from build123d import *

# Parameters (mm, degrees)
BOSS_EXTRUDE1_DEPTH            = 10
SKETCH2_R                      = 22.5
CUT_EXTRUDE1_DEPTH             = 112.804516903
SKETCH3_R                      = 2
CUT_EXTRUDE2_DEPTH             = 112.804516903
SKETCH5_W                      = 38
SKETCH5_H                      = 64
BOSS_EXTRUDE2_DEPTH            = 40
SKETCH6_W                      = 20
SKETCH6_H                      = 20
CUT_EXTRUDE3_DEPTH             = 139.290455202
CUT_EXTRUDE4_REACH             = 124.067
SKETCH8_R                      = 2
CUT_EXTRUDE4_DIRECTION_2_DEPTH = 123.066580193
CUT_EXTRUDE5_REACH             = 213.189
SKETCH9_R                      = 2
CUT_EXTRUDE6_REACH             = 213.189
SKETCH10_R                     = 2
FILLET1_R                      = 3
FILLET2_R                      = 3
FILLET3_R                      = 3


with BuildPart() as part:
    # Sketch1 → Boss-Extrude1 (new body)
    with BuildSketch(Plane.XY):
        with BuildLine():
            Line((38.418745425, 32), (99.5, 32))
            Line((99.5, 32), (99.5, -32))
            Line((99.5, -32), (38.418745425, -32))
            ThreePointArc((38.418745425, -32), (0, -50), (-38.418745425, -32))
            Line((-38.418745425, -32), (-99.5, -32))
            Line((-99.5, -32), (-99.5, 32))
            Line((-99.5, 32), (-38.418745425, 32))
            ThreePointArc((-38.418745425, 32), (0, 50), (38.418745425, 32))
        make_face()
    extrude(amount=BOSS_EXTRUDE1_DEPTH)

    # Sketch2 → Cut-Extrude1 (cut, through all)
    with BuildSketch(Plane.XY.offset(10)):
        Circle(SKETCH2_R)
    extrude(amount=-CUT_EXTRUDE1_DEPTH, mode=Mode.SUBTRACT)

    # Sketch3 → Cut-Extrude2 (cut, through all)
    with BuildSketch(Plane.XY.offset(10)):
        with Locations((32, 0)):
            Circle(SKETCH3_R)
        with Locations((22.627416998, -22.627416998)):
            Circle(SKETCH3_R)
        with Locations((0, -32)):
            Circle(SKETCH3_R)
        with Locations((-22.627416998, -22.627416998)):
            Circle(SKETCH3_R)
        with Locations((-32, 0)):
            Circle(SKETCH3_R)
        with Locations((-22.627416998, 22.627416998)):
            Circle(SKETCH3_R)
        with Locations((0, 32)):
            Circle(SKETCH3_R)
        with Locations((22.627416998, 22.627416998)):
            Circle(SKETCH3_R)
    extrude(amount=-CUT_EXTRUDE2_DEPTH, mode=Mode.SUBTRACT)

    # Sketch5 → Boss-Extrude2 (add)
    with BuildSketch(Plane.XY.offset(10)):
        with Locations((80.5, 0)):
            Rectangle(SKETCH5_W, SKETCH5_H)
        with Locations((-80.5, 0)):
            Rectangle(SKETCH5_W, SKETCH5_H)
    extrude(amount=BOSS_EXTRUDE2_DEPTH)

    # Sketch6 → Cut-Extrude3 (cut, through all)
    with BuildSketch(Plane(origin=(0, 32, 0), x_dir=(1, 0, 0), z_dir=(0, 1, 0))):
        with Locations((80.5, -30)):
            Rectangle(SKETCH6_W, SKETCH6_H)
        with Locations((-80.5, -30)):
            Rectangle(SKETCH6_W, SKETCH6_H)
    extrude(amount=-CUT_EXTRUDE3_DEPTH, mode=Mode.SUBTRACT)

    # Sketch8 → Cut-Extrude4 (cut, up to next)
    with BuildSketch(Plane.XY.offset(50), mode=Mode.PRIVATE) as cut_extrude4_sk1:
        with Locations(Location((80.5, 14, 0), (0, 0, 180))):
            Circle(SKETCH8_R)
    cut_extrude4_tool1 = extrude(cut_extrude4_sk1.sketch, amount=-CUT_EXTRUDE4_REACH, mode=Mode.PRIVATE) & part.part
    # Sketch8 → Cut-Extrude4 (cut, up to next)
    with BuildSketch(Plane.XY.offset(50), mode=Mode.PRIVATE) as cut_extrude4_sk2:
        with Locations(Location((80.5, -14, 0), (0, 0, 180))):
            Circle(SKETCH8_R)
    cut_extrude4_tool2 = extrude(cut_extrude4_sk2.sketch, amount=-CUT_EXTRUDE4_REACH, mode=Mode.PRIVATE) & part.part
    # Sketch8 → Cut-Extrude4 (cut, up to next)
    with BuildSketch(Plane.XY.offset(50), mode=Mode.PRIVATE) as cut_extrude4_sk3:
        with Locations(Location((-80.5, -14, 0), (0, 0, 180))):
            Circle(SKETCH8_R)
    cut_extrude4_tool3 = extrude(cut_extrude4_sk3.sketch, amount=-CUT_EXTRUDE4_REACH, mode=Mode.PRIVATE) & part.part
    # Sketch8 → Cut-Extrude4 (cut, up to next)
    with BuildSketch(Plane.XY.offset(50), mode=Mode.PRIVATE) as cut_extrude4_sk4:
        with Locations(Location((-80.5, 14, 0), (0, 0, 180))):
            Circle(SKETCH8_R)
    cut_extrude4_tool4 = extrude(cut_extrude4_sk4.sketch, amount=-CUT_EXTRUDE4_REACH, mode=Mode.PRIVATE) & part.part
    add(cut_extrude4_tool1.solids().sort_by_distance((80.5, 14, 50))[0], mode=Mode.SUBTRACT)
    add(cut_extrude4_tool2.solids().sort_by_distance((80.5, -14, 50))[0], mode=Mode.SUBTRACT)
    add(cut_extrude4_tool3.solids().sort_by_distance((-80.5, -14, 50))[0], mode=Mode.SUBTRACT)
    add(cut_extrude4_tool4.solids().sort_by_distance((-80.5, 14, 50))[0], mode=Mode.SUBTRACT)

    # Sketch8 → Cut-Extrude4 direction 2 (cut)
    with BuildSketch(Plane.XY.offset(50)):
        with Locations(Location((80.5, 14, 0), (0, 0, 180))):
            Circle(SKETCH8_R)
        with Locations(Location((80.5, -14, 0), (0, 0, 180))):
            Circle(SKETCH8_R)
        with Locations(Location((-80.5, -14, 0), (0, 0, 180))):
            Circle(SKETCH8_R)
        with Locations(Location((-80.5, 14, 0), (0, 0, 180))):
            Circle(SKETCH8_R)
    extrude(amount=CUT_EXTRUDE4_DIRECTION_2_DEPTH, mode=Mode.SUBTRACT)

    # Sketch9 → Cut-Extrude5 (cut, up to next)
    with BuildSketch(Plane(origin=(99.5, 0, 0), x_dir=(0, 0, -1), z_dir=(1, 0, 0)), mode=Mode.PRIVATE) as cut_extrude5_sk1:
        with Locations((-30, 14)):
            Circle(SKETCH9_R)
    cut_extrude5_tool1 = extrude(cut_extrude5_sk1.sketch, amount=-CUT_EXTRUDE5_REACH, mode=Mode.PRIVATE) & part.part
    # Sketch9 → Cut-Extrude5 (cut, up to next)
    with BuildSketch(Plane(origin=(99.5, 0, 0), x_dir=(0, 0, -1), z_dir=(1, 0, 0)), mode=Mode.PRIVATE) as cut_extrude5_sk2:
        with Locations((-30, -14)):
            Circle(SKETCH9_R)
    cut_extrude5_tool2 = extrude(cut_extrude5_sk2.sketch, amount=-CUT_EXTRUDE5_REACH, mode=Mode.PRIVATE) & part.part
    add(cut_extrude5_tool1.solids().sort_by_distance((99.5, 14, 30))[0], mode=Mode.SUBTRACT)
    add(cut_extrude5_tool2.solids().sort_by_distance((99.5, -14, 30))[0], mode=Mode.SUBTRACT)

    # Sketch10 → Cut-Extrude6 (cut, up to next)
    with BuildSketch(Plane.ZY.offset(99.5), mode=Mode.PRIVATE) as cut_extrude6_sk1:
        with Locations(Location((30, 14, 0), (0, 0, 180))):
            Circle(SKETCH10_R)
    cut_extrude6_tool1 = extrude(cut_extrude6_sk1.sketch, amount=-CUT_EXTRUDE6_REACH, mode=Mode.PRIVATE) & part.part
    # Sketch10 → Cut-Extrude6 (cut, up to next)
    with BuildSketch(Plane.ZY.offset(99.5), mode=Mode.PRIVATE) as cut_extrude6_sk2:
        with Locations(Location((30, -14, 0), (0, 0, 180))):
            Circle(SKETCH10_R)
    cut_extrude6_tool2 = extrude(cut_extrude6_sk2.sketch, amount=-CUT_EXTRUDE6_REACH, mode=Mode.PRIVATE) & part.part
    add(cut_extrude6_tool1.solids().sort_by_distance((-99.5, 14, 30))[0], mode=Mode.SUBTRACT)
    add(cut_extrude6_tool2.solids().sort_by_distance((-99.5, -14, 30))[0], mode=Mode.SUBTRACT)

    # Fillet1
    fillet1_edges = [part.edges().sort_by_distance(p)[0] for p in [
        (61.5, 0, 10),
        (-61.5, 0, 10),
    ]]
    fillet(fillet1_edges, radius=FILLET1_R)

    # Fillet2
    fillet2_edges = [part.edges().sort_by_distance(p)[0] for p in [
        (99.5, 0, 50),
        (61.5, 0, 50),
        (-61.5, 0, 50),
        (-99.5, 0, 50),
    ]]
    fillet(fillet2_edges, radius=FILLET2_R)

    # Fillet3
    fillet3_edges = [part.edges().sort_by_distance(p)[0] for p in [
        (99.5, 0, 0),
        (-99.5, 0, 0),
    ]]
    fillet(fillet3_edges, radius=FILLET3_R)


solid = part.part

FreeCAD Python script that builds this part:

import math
import FreeCAD as App
import Part
import Sketcher
Q = App.Units.Quantity


def edges_at(feature, points):
    """Names of the edges that pass closest to the given points."""
    edges = feature.Shape.Edges
    near = lambda p: min(range(len(edges)), key=lambda i: edges[i].distToShape(Part.Vertex(*p))[0])
    return sorted({f"Edge{near(p) + 1}" for p in points})


def add_polygon(sketch, points):
    """Adds a closed chain of lines whose ends are joined by coincident constraints."""
    first, n = sketch.GeometryCount, len(points)
    for a, b in zip(points, points[1:] + points[:1]):
        sketch.addGeometry(Part.LineSegment(App.Vector(*a, 0), App.Vector(*b, 0)), False)
    for i in range(n):
        sketch.addConstraint(Sketcher.Constraint("Coincident", first + i, 2, first + (i + 1) % n, 1))

doc = App.newDocument("Part")
body = doc.addObject("PartDesign::Body", "Body")

# Sketch on XY plane
sketch1 = body.newObject("Sketcher::SketchObject", "Sketch")
sketch1.AttachmentSupport = (doc.getObject("XY_Plane"), [""])
sketch1.MapMode = "FlatFace"
sketch1.addGeometry(Part.LineSegment(App.Vector(100, 32, 0), App.Vector(38, 32, 0)), False)
sketch1.addGeometry(Part.ArcOfCircle(Part.Circle(App.Vector(0, 0, 0), App.Vector(0, 0, 1), 50), math.radians(40), math.radians(140)), False)
sketch1.addGeometry(Part.LineSegment(App.Vector(-38, 32, 0), App.Vector(-100, 32, 0)), False)
sketch1.addGeometry(Part.LineSegment(App.Vector(-100, 32, 0), App.Vector(-100, -32, 0)), False)
sketch1.addGeometry(Part.LineSegment(App.Vector(-100, -32, 0), App.Vector(-38, -32, 0)), False)
sketch1.addGeometry(Part.ArcOfCircle(Part.Circle(App.Vector(0, 0, 0), App.Vector(0, 0, 1), 50), math.radians(-140), math.radians(-40)), False)
sketch1.addGeometry(Part.LineSegment(App.Vector(38, -32, 0), App.Vector(100, -32, 0)), False)
sketch1.addGeometry(Part.LineSegment(App.Vector(100, -32, 0), App.Vector(100, 32, 0)), False)
sketch1.addConstraint(Sketcher.Constraint("Coincident", 0, 2, 1, 1))
sketch1.addConstraint(Sketcher.Constraint("Coincident", 1, 2, 2, 1))
sketch1.addConstraint(Sketcher.Constraint("Coincident", 2, 2, 3, 1))
sketch1.addConstraint(Sketcher.Constraint("Coincident", 3, 2, 4, 1))
sketch1.addConstraint(Sketcher.Constraint("Coincident", 4, 2, 5, 1))
sketch1.addConstraint(Sketcher.Constraint("Coincident", 5, 2, 6, 1))
sketch1.addConstraint(Sketcher.Constraint("Coincident", 6, 2, 7, 1))
sketch1.addConstraint(Sketcher.Constraint("Coincident", 7, 2, 0, 1))
sketch1.addConstraint(Sketcher.Constraint("Horizontal", 0))
sketch1.addConstraint(Sketcher.Constraint("Horizontal", 2))
sketch1.addConstraint(Sketcher.Constraint("Vertical", 3))
sketch1.addConstraint(Sketcher.Constraint("Horizontal", 4))
sketch1.addConstraint(Sketcher.Constraint("Horizontal", 6))
sketch1.addConstraint(Sketcher.Constraint("Vertical", 7))
sketch1.addConstraint(Sketcher.Constraint("Coincident", 1, 3, -1, 1))
sketch1.addConstraint(Sketcher.Constraint("Coincident", 5, 3, -1, 1))
sketch1.addConstraint(Sketcher.Constraint("Equal", 1, 5))
sketch1.addConstraint(Sketcher.Constraint("Symmetric", 2, 2, 6, 2, -1, 1))
sketch1.addConstraint(Sketcher.Constraint("Horizontal", 0, 2, 1, 2))
sketch1.addConstraint(Sketcher.Constraint("Horizontal", 4, 2, 5, 2))
sketch1.addConstraint(Sketcher.Constraint("Radius", 1, Q("50 mm")))
sketch1.addConstraint(Sketcher.Constraint("DistanceY", 3, 2, 3, 1, Q("64 mm")))
sketch1.addConstraint(Sketcher.Constraint("DistanceX", 2, 2, -1, 1, Q("99.5 mm")))
pad1 = body.newObject("PartDesign::Pad", "Pad")
pad1.Profile = sketch1
pad1.Length = 10

# Sketch on XY plane
sketch2 = body.newObject("Sketcher::SketchObject", "Sketch001")
sketch2.AttachmentSupport = (doc.getObject("XY_Plane"), [""])
sketch2.MapMode = "FlatFace"
sketch2.AttachmentOffset = App.Placement(App.Vector(0, 0, 10), App.Rotation())
sketch2.addGeometry(Part.Circle(App.Vector(0, 0, 0), App.Vector(0, 0, 1), 22), False)
sketch2.addConstraint(Sketcher.Constraint("Coincident", 0, 3, -1, 1))
sketch2.addConstraint(Sketcher.Constraint("Diameter", 0, Q("45 mm")))
pocket1 = body.newObject("PartDesign::Pocket", "Pocket")
pocket1.Profile = sketch2
pocket1.Type = "ThroughAll"

# Sketch on XY plane
sketch3 = body.newObject("Sketcher::SketchObject", "Sketch002")
sketch3.AttachmentSupport = (doc.getObject("XY_Plane"), [""])
sketch3.MapMode = "FlatFace"
sketch3.AttachmentOffset = App.Placement(App.Vector(0, 0, 10), App.Rotation())
sketch3.addGeometry(Part.Circle(App.Vector(32, 0, 0), App.Vector(0, 0, 1), 2), False)
sketch3.addGeometry(Part.Circle(App.Vector(22.6, -22.6, 0), App.Vector(0, 0, 1), 2), False)
sketch3.addGeometry(Part.Circle(App.Vector(0, -32, 0), App.Vector(0, 0, 1), 2), False)
sketch3.addGeometry(Part.Circle(App.Vector(-22.6, -22.6, 0), App.Vector(0, 0, 1), 2), False)
sketch3.addGeometry(Part.Circle(App.Vector(-32, 0, 0), App.Vector(0, 0, 1), 2), False)
sketch3.addGeometry(Part.Circle(App.Vector(-22.6, 22.6, 0), App.Vector(0, 0, 1), 2), False)
sketch3.addGeometry(Part.Circle(App.Vector(0, 32, 0), App.Vector(0, 0, 1), 2), False)
sketch3.addGeometry(Part.Circle(App.Vector(22.6, 22.6, 0), App.Vector(0, 0, 1), 2), False)
sketch3.addConstraint(Sketcher.Constraint("Equal", 0, 1))
sketch3.addConstraint(Sketcher.Constraint("Equal", 1, 2))
sketch3.addConstraint(Sketcher.Constraint("Equal", 2, 3))
sketch3.addConstraint(Sketcher.Constraint("Equal", 3, 4))
sketch3.addConstraint(Sketcher.Constraint("Equal", 4, 5))
sketch3.addConstraint(Sketcher.Constraint("Equal", 5, 6))
sketch3.addConstraint(Sketcher.Constraint("Equal", 6, 7))
sketch3.addConstraint(Sketcher.Constraint("Symmetric", 0, 3, 4, 3, -1, 1))
sketch3.addConstraint(Sketcher.Constraint("Symmetric", 1, 3, 5, 3, -1, 1))
sketch3.addConstraint(Sketcher.Constraint("Symmetric", 2, 3, 6, 3, -1, 1))
sketch3.addConstraint(Sketcher.Constraint("Symmetric", 3, 3, 7, 3, -1, 1))
sketch3.addConstraint(Sketcher.Constraint("Symmetric", 1, 3, 3, 3, -2))
sketch3.addConstraint(Sketcher.Constraint("PointOnObject", 0, 3, -1))
sketch3.addConstraint(Sketcher.Constraint("PointOnObject", 2, 3, -2))
sketch3.addConstraint(Sketcher.Constraint("Diameter", 0, Q("4 mm")))
sketch3.addConstraint(Sketcher.Constraint("DistanceX", -1, 1, 0, 3, Q("32 mm")))
sketch3.addConstraint(Sketcher.Constraint("DistanceY", 2, 3, -1, 1, Q("32 mm")))
sketch3.addConstraint(Sketcher.Constraint("DistanceX", -1, 1, 1, 3, Q("22.627417 mm")))
sketch3.addConstraint(Sketcher.Constraint("DistanceY", 1, 3, -1, 1, Q("22.627417 mm")))
pocket2 = body.newObject("PartDesign::Pocket", "Pocket001")
pocket2.Profile = sketch3
pocket2.Type = "ThroughAll"

# Sketch on XY plane
sketch4 = body.newObject("Sketcher::SketchObject", "Sketch003")
sketch4.AttachmentSupport = (doc.getObject("XY_Plane"), [""])
sketch4.MapMode = "FlatFace"
sketch4.AttachmentOffset = App.Placement(App.Vector(0, 0, 10), App.Rotation())
add_polygon(sketch4, [(62, 32), (62, -32), (100, -32), (100, 32)])  # lines 0-3
add_polygon(sketch4, [(-100, 32), (-100, -32), (-62, -32), (-62, 32)])  # lines 4-7
sketch4.addConstraint(Sketcher.Constraint("Vertical", 0))
sketch4.addConstraint(Sketcher.Constraint("Horizontal", 1))
sketch4.addConstraint(Sketcher.Constraint("Vertical", 2))
sketch4.addConstraint(Sketcher.Constraint("Horizontal", 3))
sketch4.addConstraint(Sketcher.Constraint("Vertical", 4))
sketch4.addConstraint(Sketcher.Constraint("Horizontal", 5))
sketch4.addConstraint(Sketcher.Constraint("Vertical", 6))
sketch4.addConstraint(Sketcher.Constraint("Horizontal", 7))
sketch4.addConstraint(Sketcher.Constraint("Symmetric", 2, 2, 4, 2, -1, 1))
sketch4.addConstraint(Sketcher.Constraint("Symmetric", 0, 2, 6, 2, -1, 1))
sketch4.addConstraint(Sketcher.Constraint("Horizontal", 1, 2, 4, 2))
sketch4.addConstraint(Sketcher.Constraint("DistanceX", 1, 1, 1, 2, Q("38 mm")))
sketch4.addConstraint(Sketcher.Constraint("DistanceY", 0, 2, 0, 1, Q("64 mm")))
sketch4.addConstraint(Sketcher.Constraint("DistanceX", 4, 2, 0, 2, Q("161 mm")))
pad2 = body.newObject("PartDesign::Pad", "Pad001")
pad2.Profile = sketch4
pad2.Length = 40

# Sketch on XZ plane
sketch5 = body.newObject("Sketcher::SketchObject", "Sketch004")
sketch5.AttachmentSupport = (doc.getObject("XZ_Plane"), [""])
sketch5.MapMode = "FlatFace"
sketch5.AttachmentOffset = App.Placement(App.Vector(0, 0, -32), App.Rotation())
add_polygon(sketch5, [(70, 20), (70, 40), (90, 40), (90, 20)])  # lines 0-3
add_polygon(sketch5, [(-90, 20), (-90, 40), (-70, 40), (-70, 20)])  # lines 4-7
sketch5.addConstraint(Sketcher.Constraint("Vertical", 0))
sketch5.addConstraint(Sketcher.Constraint("Horizontal", 1))
sketch5.addConstraint(Sketcher.Constraint("Vertical", 2))
sketch5.addConstraint(Sketcher.Constraint("Horizontal", 3))
sketch5.addConstraint(Sketcher.Constraint("Vertical", 4))
sketch5.addConstraint(Sketcher.Constraint("Horizontal", 5))
sketch5.addConstraint(Sketcher.Constraint("Vertical", 6))
sketch5.addConstraint(Sketcher.Constraint("Horizontal", 7))
sketch5.addConstraint(Sketcher.Constraint("Symmetric", 1, 2, 4, 2, -2))
sketch5.addConstraint(Sketcher.Constraint("Symmetric", 3, 2, 6, 2, -2))
sketch5.addConstraint(Sketcher.Constraint("Equal", 7, 0))
sketch5.addConstraint(Sketcher.Constraint("DistanceX", 1, 1, 1, 2, Q("20 mm")))
sketch5.addConstraint(Sketcher.Constraint("DistanceY", -1, 1, 0, 2, Q("40 mm")))
sketch5.addConstraint(Sketcher.Constraint("DistanceX", 4, 2, 0, 2, Q("161 mm")))
pocket3 = body.newObject("PartDesign::Pocket", "Pocket002")
pocket3.Profile = sketch5
pocket3.Type = "ThroughAll"
pocket3.Reversed = True

# Sketch on XY plane
sketch6 = body.newObject("Sketcher::SketchObject", "Sketch005")
sketch6.AttachmentSupport = (doc.getObject("XY_Plane"), [""])
sketch6.MapMode = "FlatFace"
sketch6.AttachmentOffset = App.Placement(App.Vector(0, 0, 50), App.Rotation())
sketch6.addGeometry(Part.Circle(App.Vector(80.5, 14, 0), App.Vector(0, 0, 1), 2), False)
sketch6.addConstraint(Sketcher.Constraint("Diameter", 0, Q("4 mm")))
sketch6.addConstraint(Sketcher.Constraint("DistanceY", -1, 1, 0, 3, Q("14 mm")))
sketch6.addConstraint(Sketcher.Constraint("DistanceX", -1, 1, 0, 3, Q("80.5 mm")))
pocket4 = body.newObject("PartDesign::Pocket", "Pocket003")
pocket4.Profile = sketch6
pocket4.Type = "UpToFirst"

# Sketch on XY plane
sketch7 = body.newObject("Sketcher::SketchObject", "Sketch006")
sketch7.AttachmentSupport = (doc.getObject("XY_Plane"), [""])
sketch7.MapMode = "FlatFace"
sketch7.AttachmentOffset = App.Placement(App.Vector(0, 0, 50), App.Rotation())
sketch7.addGeometry(Part.Circle(App.Vector(80.5, -14, 0), App.Vector(0, 0, 1), 2), False)
sketch7.addConstraint(Sketcher.Constraint("Diameter", 0, Q("4 mm")))
sketch7.addConstraint(Sketcher.Constraint("DistanceY", 0, 3, -1, 1, Q("14 mm")))
sketch7.addConstraint(Sketcher.Constraint("DistanceX", -1, 1, 0, 3, Q("80.5 mm")))
pocket5 = body.newObject("PartDesign::Pocket", "Pocket004")
pocket5.Profile = sketch7
pocket5.Type = "UpToFirst"

# Sketch on XY plane
sketch8 = body.newObject("Sketcher::SketchObject", "Sketch007")
sketch8.AttachmentSupport = (doc.getObject("XY_Plane"), [""])
sketch8.MapMode = "FlatFace"
sketch8.AttachmentOffset = App.Placement(App.Vector(0, 0, 50), App.Rotation())
sketch8.addGeometry(Part.Circle(App.Vector(-80.5, -14, 0), App.Vector(0, 0, 1), 2), False)
sketch8.addConstraint(Sketcher.Constraint("Diameter", 0, Q("4 mm")))
sketch8.addConstraint(Sketcher.Constraint("DistanceY", 0, 3, -1, 1, Q("14 mm")))
sketch8.addConstraint(Sketcher.Constraint("DistanceX", 0, 3, -1, 1, Q("80.5 mm")))
pocket6 = body.newObject("PartDesign::Pocket", "Pocket005")
pocket6.Profile = sketch8
pocket6.Type = "UpToFirst"

# Sketch on XY plane
sketch9 = body.newObject("Sketcher::SketchObject", "Sketch008")
sketch9.AttachmentSupport = (doc.getObject("XY_Plane"), [""])
sketch9.MapMode = "FlatFace"
sketch9.AttachmentOffset = App.Placement(App.Vector(0, 0, 50), App.Rotation())
sketch9.addGeometry(Part.Circle(App.Vector(-80.5, 14, 0), App.Vector(0, 0, 1), 2), False)
sketch9.addConstraint(Sketcher.Constraint("Diameter", 0, Q("4 mm")))
sketch9.addConstraint(Sketcher.Constraint("DistanceY", -1, 1, 0, 3, Q("14 mm")))
sketch9.addConstraint(Sketcher.Constraint("DistanceX", 0, 3, -1, 1, Q("80.5 mm")))
pocket7 = body.newObject("PartDesign::Pocket", "Pocket006")
pocket7.Profile = sketch9
pocket7.Type = "UpToFirst"

# Sketch on XY plane
sketch10 = body.newObject("Sketcher::SketchObject", "Sketch009")
sketch10.AttachmentSupport = (doc.getObject("XY_Plane"), [""])
sketch10.MapMode = "FlatFace"
sketch10.AttachmentOffset = App.Placement(App.Vector(0, 0, 50), App.Rotation())
sketch10.addGeometry(Part.Circle(App.Vector(80.5, 14, 0), App.Vector(0, 0, 1), 2), False)
sketch10.addGeometry(Part.Circle(App.Vector(80.5, -14, 0), App.Vector(0, 0, 1), 2), False)
sketch10.addGeometry(Part.Circle(App.Vector(-80.5, -14, 0), App.Vector(0, 0, 1), 2), False)
sketch10.addGeometry(Part.Circle(App.Vector(-80.5, 14, 0), App.Vector(0, 0, 1), 2), False)
sketch10.addConstraint(Sketcher.Constraint("Equal", 0, 1))
sketch10.addConstraint(Sketcher.Constraint("Equal", 1, 2))
sketch10.addConstraint(Sketcher.Constraint("Equal", 2, 3))
sketch10.addConstraint(Sketcher.Constraint("Symmetric", 0, 3, 2, 3, -1, 1))
sketch10.addConstraint(Sketcher.Constraint("Symmetric", 1, 3, 3, 3, -1, 1))
sketch10.addConstraint(Sketcher.Constraint("Symmetric", 1, 3, 2, 3, -2))
sketch10.addConstraint(Sketcher.Constraint("Diameter", 0, Q("4 mm")))
sketch10.addConstraint(Sketcher.Constraint("DistanceY", -1, 1, 0, 3, Q("14 mm")))
sketch10.addConstraint(Sketcher.Constraint("DistanceX", 2, 3, 1, 3, Q("161 mm")))
pocket8 = body.newObject("PartDesign::Pocket", "Pocket007")
pocket8.Profile = sketch10
pocket8.Length = 123.06658
pocket8.Reversed = True

# Sketch on YZ plane
sketch11 = body.newObject("Sketcher::SketchObject", "Sketch010")
sketch11.AttachmentSupport = (doc.getObject("YZ_Plane"), [""])
sketch11.MapMode = "FlatFace"
sketch11.AttachmentOffset = App.Placement(App.Vector(0, 0, 99.5), App.Rotation())
sketch11.addGeometry(Part.Circle(App.Vector(14, 30, 0), App.Vector(0, 0, 1), 2), False)
sketch11.addConstraint(Sketcher.Constraint("Diameter", 0, Q("4 mm")))
sketch11.addConstraint(Sketcher.Constraint("DistanceX", -1, 1, 0, 3, Q("14 mm")))
sketch11.addConstraint(Sketcher.Constraint("DistanceY", -1, 1, 0, 3, Q("30 mm")))
pocket9 = body.newObject("PartDesign::Pocket", "Pocket008")
pocket9.Profile = sketch11
pocket9.Type = "UpToFirst"

# Sketch on YZ plane
sketch12 = body.newObject("Sketcher::SketchObject", "Sketch011")
sketch12.AttachmentSupport = (doc.getObject("YZ_Plane"), [""])
sketch12.MapMode = "FlatFace"
sketch12.AttachmentOffset = App.Placement(App.Vector(0, 0, 99.5), App.Rotation())
sketch12.addGeometry(Part.Circle(App.Vector(-14, 30, 0), App.Vector(0, 0, 1), 2), False)
sketch12.addConstraint(Sketcher.Constraint("Diameter", 0, Q("4 mm")))
sketch12.addConstraint(Sketcher.Constraint("DistanceX", 0, 3, -1, 1, Q("14 mm")))
sketch12.addConstraint(Sketcher.Constraint("DistanceY", -1, 1, 0, 3, Q("30 mm")))
pocket10 = body.newObject("PartDesign::Pocket", "Pocket009")
pocket10.Profile = sketch12
pocket10.Type = "UpToFirst"

# Sketch on YZ plane
sketch13 = body.newObject("Sketcher::SketchObject", "Sketch012")
sketch13.AttachmentSupport = (doc.getObject("YZ_Plane"), [""])
sketch13.MapMode = "FlatFace"
sketch13.AttachmentOffset = App.Placement(App.Vector(0, 0, -99.5), App.Rotation())
sketch13.addGeometry(Part.Circle(App.Vector(14, 30, 0), App.Vector(0, 0, 1), 2), False)
sketch13.addConstraint(Sketcher.Constraint("Diameter", 0, Q("4 mm")))
sketch13.addConstraint(Sketcher.Constraint("DistanceX", -1, 1, 0, 3, Q("14 mm")))
sketch13.addConstraint(Sketcher.Constraint("DistanceY", -1, 1, 0, 3, Q("30 mm")))
pocket11 = body.newObject("PartDesign::Pocket", "Pocket010")
pocket11.Profile = sketch13
pocket11.Type = "UpToFirst"
pocket11.Reversed = True

# Sketch on YZ plane
sketch14 = body.newObject("Sketcher::SketchObject", "Sketch013")
sketch14.AttachmentSupport = (doc.getObject("YZ_Plane"), [""])
sketch14.MapMode = "FlatFace"
sketch14.AttachmentOffset = App.Placement(App.Vector(0, 0, -99.5), App.Rotation())
sketch14.addGeometry(Part.Circle(App.Vector(-14, 30, 0), App.Vector(0, 0, 1), 2), False)
sketch14.addConstraint(Sketcher.Constraint("Diameter", 0, Q("4 mm")))
sketch14.addConstraint(Sketcher.Constraint("DistanceX", 0, 3, -1, 1, Q("14 mm")))
sketch14.addConstraint(Sketcher.Constraint("DistanceY", -1, 1, 0, 3, Q("30 mm")))
pocket12 = body.newObject("PartDesign::Pocket", "Pocket011")
pocket12.Profile = sketch14
pocket12.Type = "UpToFirst"
pocket12.Reversed = True
doc.recompute()

fillet = body.newObject("PartDesign::Fillet", "Fillet")
fillet.Base = (pocket12, edges_at(pocket12, [(61.5, 0, 10), (-61.5, 0, 10)]))
fillet.Radius = 3
doc.recompute()

fillet2 = body.newObject("PartDesign::Fillet", "Fillet001")
fillet2.Base = (fillet, edges_at(fillet, [
    (99.5, 0, 50),
    (61.5, 0, 50),
    (-61.5, 0, 50),
    (-99.5, 0, 50),
]))
fillet2.Radius = 3
doc.recompute()

fillet3 = body.newObject("PartDesign::Fillet", "Fillet002")
fillet3.Base = (fillet2, edges_at(fillet2, [(99.5, 0, 0), (-99.5, 0, 0)]))
fillet3.Radius = 3

doc.recompute()
